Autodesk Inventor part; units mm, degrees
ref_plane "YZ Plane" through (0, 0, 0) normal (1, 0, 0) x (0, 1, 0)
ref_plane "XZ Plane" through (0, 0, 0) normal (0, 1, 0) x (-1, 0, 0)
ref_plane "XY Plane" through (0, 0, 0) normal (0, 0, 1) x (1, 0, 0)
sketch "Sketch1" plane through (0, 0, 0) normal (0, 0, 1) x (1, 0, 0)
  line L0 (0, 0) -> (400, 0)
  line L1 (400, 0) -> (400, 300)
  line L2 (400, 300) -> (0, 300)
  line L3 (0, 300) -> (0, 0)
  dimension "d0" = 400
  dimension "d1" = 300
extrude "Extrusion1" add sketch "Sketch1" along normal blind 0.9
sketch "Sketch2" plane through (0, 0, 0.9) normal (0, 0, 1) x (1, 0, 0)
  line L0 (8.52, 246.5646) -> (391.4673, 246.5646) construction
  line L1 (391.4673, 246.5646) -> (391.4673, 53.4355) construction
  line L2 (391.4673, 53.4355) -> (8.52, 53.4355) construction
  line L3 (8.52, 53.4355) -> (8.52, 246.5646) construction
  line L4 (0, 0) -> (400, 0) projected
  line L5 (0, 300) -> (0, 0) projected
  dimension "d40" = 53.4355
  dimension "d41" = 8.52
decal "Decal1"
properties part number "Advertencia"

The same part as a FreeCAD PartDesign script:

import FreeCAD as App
import Part
import Sketcher

V = App.Vector

doc = App.newDocument("Part")
body = doc.addObject("PartDesign::Body", "Body")

# Sketch on XY plane
sketch1 = body.newObject("Sketcher::SketchObject", "Sketch")
sketch1.AttachmentSupport = (doc.getObject("XY_Plane"), [""])
sketch1.MapMode = "FlatFace"
sketch1.addGeometry([
    Part.LineSegment(V(0, 300, 0), V(0, 0, 0)),
    Part.LineSegment(V(0, 0, 0), V(400, 0, 0)),
    Part.LineSegment(V(400, 0, 0), V(400, 300, 0)),
    Part.LineSegment(V(400, 300, 0), V(0, 300, 0)),
], False)
sketch1.addConstraint([
    Sketcher.Constraint("Coincident", 0, 2, 1, 1),
    Sketcher.Constraint("Coincident", 1, 2, 2, 1),
    Sketcher.Constraint("Coincident", 2, 2, 3, 1),
    Sketcher.Constraint("Coincident", 3, 2, 0, 1),
    Sketcher.Constraint("Vertical", 0),
    Sketcher.Constraint("Horizontal", 1),
    Sketcher.Constraint("Vertical", 2),
    Sketcher.Constraint("Horizontal", 3),
    Sketcher.Constraint("Coincident", 0, 2, -1, 1),
    Sketcher.Constraint("DistanceX", 1, 1, 1, 2, 400.0),
    Sketcher.Constraint("DistanceY", 0, 2, 0, 1, 300.0),
])
pad1 = body.newObject("PartDesign::Pad", "Pad")
pad1.Profile = sketch1
pad1.Length = 0.9

doc.recompute()
